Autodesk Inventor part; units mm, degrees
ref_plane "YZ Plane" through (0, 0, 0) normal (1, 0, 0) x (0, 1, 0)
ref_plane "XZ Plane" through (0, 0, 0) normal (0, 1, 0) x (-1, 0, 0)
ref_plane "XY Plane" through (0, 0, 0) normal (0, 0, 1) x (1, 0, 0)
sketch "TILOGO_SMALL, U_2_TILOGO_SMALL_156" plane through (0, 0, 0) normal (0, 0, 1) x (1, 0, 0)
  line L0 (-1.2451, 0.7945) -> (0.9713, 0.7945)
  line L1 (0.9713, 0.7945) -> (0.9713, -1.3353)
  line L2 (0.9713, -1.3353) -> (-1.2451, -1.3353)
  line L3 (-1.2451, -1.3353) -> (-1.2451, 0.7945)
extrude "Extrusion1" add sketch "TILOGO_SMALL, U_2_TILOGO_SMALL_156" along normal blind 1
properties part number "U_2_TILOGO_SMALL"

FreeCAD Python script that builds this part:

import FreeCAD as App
import Part
import Sketcher

V = App.Vector


def add_polygon(sketch, points):
    """Adds a closed chain of lines whose ends are joined by coincident constraints."""
    first, n = sketch.GeometryCount, len(points)
    for a, b in zip(points, points[1:] + points[:1]):
        sketch.addGeometry(Part.LineSegment(App.Vector(*a, 0), App.Vector(*b, 0)), False)
    for i in range(n):
        sketch.addConstraint(Sketcher.Constraint("Coincident", first + i, 2, first + (i + 1) % n, 1))

doc = App.newDocument("Part")
body = doc.addObject("PartDesign::Body", "Body")

# Sketch on XY plane
sketch1 = body.newObject("Sketcher::SketchObject", "Sketch")
sketch1.AttachmentSupport = (doc.getObject("XY_Plane"), [""])
sketch1.MapMode = "FlatFace"
add_polygon(sketch1, [(1, 0.8), (-1.2, 0.8), (-1.2, -1.3), (1, -1.3)])  # lines 0-3
sketch1.addConstraint(Sketcher.Constraint("Horizontal", 0))
sketch1.addConstraint(Sketcher.Constraint("Vertical", 1))
sketch1.addConstraint(Sketcher.Constraint("Horizontal", 2))
sketch1.addConstraint(Sketcher.Constraint("Vertical", 3))
sketch1.addConstraint(Sketcher.Constraint("DistanceX", 0, 2, 0, 1, 2.2164))
sketch1.addConstraint(Sketcher.Constraint("DistanceY", 1, 2, 1, 1, 2.1298))
sketch1.addConstraint(Sketcher.Constraint("DistanceX", 0, 2, -1, 1, 1.245))
sketch1.addConstraint(Sketcher.Constraint("DistanceY", -1, 1, 0, 2, 0.7945))
pad1 = body.newObject("PartDesign::Pad", "Pad")
pad1.Profile = sketch1
pad1.Length = 1

doc.recompute()
